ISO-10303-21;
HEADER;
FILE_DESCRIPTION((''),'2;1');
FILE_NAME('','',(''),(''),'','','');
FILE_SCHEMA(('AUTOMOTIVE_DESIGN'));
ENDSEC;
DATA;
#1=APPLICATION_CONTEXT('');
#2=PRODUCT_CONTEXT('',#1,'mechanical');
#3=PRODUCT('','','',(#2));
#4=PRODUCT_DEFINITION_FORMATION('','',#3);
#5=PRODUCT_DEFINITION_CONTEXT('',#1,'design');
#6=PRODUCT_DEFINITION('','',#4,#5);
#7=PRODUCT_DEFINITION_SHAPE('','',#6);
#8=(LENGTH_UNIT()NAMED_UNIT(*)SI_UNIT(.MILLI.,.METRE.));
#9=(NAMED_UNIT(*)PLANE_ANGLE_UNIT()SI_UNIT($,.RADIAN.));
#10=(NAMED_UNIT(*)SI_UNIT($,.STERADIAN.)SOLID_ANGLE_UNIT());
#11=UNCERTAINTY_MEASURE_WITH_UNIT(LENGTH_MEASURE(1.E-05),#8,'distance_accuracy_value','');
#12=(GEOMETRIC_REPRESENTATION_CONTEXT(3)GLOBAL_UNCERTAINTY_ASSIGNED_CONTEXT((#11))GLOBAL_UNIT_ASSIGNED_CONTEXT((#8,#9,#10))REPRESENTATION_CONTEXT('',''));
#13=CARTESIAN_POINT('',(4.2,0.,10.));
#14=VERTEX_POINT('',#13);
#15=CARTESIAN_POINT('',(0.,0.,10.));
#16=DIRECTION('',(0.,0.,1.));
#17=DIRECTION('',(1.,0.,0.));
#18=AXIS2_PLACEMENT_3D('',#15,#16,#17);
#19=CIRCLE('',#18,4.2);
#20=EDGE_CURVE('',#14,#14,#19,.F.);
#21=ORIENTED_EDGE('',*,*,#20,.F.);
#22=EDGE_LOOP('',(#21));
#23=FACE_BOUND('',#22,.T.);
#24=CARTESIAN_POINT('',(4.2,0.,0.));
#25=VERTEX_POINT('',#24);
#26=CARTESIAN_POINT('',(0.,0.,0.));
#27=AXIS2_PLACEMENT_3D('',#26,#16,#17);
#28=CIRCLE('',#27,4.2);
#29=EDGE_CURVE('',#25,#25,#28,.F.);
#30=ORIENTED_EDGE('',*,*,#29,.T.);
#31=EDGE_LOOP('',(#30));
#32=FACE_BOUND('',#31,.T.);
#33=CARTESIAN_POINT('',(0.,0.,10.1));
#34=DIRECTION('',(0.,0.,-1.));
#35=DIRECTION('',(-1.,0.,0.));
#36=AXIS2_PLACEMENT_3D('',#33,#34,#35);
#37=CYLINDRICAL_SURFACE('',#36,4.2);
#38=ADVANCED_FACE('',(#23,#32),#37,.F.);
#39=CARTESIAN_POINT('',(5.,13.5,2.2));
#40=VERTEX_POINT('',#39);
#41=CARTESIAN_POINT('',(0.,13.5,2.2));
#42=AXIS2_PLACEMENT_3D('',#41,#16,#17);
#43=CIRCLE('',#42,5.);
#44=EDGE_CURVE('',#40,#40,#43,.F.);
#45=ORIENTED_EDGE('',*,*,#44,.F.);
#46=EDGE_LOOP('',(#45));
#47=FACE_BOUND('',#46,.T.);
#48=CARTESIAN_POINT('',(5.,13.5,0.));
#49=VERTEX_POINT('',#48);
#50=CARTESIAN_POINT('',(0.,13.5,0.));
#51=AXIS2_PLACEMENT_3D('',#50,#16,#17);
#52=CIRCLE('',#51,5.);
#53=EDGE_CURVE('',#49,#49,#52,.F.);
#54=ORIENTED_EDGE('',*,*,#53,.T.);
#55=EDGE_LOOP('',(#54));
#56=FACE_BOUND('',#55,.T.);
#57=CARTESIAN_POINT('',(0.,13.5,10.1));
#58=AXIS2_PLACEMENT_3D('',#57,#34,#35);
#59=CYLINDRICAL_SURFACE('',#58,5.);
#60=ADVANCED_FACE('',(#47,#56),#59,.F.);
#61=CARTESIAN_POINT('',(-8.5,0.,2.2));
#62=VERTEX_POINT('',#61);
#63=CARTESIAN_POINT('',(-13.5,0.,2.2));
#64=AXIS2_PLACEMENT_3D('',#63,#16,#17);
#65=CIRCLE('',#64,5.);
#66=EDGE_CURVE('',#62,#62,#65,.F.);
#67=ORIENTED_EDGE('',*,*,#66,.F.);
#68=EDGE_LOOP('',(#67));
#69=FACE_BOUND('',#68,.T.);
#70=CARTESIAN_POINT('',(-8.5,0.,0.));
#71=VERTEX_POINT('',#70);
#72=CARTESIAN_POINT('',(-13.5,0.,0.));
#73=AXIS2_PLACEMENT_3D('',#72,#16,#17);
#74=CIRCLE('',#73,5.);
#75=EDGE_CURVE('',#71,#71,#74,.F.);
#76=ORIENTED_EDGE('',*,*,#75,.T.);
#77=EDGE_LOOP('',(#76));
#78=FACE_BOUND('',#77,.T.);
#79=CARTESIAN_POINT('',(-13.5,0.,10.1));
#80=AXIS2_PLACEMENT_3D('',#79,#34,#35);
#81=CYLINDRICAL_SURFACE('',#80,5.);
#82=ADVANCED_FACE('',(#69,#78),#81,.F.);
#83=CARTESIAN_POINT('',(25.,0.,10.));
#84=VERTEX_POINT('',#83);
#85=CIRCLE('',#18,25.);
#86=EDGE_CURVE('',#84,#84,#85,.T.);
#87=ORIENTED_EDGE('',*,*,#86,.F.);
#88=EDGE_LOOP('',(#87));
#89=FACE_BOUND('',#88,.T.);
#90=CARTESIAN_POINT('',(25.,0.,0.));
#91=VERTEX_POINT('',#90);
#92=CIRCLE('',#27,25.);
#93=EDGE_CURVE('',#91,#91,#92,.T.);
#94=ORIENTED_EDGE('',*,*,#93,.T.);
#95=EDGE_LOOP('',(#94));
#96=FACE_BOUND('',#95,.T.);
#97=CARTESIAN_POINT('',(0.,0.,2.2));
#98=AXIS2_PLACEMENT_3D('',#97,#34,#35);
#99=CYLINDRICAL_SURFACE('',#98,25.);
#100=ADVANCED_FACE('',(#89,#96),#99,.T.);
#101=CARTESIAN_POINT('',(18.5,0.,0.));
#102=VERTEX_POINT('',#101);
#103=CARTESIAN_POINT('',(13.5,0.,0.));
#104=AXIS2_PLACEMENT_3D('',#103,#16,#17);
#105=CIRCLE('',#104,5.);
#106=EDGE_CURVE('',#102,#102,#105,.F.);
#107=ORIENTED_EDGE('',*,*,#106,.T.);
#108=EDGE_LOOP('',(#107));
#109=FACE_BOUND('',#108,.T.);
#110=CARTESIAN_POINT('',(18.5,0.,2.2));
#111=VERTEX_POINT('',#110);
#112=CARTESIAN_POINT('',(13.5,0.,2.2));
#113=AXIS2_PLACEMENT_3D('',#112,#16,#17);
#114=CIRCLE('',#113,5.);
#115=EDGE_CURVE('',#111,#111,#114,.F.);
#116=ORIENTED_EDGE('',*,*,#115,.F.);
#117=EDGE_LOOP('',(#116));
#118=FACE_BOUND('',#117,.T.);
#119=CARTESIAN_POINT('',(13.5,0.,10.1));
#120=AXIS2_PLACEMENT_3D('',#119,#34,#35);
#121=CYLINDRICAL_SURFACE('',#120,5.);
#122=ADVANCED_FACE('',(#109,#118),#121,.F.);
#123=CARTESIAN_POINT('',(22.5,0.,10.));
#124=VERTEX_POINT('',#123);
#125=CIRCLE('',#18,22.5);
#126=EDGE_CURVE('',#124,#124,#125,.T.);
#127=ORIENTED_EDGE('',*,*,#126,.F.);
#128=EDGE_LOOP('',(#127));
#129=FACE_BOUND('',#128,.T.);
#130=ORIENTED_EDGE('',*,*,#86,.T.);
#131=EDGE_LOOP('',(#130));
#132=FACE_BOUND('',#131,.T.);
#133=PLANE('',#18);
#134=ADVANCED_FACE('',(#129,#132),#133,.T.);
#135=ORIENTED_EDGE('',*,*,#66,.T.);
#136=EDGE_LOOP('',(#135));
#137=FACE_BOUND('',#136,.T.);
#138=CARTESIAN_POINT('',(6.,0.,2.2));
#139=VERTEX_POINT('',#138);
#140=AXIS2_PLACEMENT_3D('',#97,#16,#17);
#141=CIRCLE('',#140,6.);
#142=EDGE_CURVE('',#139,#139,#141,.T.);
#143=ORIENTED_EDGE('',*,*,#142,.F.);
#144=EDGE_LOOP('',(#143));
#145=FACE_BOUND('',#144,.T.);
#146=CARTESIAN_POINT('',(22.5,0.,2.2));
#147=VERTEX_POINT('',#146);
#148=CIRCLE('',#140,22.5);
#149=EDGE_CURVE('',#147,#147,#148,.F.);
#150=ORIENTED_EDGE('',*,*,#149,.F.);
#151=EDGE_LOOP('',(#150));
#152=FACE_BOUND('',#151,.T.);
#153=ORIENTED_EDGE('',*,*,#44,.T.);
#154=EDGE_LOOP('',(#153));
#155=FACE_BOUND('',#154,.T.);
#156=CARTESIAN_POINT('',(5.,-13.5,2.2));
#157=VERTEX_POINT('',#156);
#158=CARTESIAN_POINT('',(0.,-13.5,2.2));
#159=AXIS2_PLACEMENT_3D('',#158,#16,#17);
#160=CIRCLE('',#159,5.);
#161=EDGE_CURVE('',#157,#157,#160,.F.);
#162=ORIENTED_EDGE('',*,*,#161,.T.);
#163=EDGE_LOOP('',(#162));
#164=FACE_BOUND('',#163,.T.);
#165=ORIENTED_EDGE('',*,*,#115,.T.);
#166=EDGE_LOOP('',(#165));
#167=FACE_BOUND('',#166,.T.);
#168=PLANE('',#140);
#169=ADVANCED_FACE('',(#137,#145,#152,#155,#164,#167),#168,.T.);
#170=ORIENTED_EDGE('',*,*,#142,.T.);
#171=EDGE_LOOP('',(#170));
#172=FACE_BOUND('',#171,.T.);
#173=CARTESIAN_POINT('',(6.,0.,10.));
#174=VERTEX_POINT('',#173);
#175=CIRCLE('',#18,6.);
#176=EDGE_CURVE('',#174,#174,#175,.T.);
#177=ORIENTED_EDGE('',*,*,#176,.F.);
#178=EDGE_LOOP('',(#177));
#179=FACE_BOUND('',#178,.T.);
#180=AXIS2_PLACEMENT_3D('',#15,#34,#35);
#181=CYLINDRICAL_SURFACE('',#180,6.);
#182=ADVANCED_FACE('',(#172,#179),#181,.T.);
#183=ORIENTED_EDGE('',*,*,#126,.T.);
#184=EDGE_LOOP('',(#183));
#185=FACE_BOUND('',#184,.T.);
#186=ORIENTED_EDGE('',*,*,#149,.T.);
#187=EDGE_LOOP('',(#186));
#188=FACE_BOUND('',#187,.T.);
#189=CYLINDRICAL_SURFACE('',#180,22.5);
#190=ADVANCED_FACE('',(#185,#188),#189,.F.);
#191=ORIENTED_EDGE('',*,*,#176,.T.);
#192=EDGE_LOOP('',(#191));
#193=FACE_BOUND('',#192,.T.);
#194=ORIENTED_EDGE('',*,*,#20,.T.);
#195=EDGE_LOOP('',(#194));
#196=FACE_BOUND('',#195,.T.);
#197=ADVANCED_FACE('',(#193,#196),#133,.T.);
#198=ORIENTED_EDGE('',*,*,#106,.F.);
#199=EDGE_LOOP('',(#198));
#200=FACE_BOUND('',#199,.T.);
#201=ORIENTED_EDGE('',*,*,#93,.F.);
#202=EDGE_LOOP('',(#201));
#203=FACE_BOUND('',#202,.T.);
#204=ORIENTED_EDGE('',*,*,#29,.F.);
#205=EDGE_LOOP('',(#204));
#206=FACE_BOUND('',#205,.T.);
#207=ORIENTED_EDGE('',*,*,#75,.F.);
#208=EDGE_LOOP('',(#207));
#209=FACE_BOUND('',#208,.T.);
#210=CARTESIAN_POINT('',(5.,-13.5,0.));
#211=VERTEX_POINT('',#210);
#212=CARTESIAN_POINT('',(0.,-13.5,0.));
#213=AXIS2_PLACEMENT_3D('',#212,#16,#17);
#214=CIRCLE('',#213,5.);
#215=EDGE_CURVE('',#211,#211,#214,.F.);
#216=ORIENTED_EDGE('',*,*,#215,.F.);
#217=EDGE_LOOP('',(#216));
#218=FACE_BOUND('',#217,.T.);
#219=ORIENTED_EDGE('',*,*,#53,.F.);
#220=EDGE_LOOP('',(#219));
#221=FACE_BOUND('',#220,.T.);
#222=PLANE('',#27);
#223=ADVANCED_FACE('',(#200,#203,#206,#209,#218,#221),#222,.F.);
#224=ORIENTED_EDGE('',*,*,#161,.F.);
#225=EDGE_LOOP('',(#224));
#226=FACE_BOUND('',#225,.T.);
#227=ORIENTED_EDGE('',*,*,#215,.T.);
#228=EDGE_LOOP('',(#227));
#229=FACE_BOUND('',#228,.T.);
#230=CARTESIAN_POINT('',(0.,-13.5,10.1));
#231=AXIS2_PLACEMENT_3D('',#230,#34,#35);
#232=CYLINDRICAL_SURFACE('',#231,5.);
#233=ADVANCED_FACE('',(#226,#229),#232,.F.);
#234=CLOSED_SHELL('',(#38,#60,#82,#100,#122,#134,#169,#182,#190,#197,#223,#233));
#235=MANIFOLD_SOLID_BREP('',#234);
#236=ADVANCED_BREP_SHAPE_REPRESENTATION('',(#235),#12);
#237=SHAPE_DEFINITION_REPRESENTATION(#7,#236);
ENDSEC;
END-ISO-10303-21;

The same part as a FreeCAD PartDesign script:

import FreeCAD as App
import Part
import Sketcher

V = App.Vector
Q = App.Units.Quantity

doc = App.newDocument("Part")
body = doc.addObject("PartDesign::Body", "Body")

# Sketch on XY plane
sketch1 = body.newObject("Sketcher::SketchObject", "Sketch")
sketch1.AttachmentSupport = (doc.getObject("XY_Plane"), [""])
sketch1.MapMode = "FlatFace"
sketch1.addGeometry(Part.Circle(V(0, 0, 0), V(0, 0, 1), 25), False)
sketch1.addConstraint([
    Sketcher.Constraint("Coincident", 0, 3, -1, 1),
    Sketcher.Constraint("Diameter", 0, Q("50 mm")),
])
pad1 = body.newObject("PartDesign::Pad", "Pad")
pad1.Profile = sketch1
pad1.Length = 2.2

# Sketch on XY plane
sketch2 = body.newObject("Sketcher::SketchObject", "Sketch001")
sketch2.AttachmentSupport = (doc.getObject("XY_Plane"), [""])
sketch2.MapMode = "FlatFace"
sketch2.AttachmentOffset = App.Placement(V(0, 0, 2.2), App.Rotation())
sketch2.addGeometry([
    Part.Circle(V(0, 0, 0), V(0, 0, 1), 25),
    Part.Circle(V(0, 0, 0), V(0, 0, 1), 22.5),
], False)
sketch2.addConstraint([
    Sketcher.Constraint("Coincident", 0, 3, -1, 1),
    Sketcher.Constraint("Coincident", 1, 3, -1, 1),
    Sketcher.Constraint("Diameter", 0, Q("50 mm")),
    Sketcher.Constraint("Diameter", 1, Q("45 mm")),
])
pad2 = body.newObject("PartDesign::Pad", "Pad001")
pad2.Profile = sketch2
pad2.Length = 7.8

# Sketch on XY plane
sketch3 = body.newObject("Sketcher::SketchObject", "Sketch002")
sketch3.AttachmentSupport = (doc.getObject("XY_Plane"), [""])
sketch3.MapMode = "FlatFace"
sketch3.AttachmentOffset = App.Placement(V(0, 0, 2.2), App.Rotation())
sketch3.addGeometry(Part.Circle(V(0, 0, 0), V(0, 0, 1), 6), False)
sketch3.addConstraint([
    Sketcher.Constraint("Coincident", 0, 3, -1, 1),
    Sketcher.Constraint("Diameter", 0, Q("12 mm")),
])
pad3 = body.newObject("PartDesign::Pad", "Pad002")
pad3.Profile = sketch3
pad3.Length = 7.8

# Sketch on XY plane
sketch4 = body.newObject("Sketcher::SketchObject", "Sketch003")
sketch4.AttachmentSupport = (doc.getObject("XY_Plane"), [""])
sketch4.MapMode = "FlatFace"
sketch4.AttachmentOffset = App.Placement(V(0, 0, -0.1), App.Rotation())
sketch4.addGeometry(Part.Circle(V(0, 0, 0), V(0, 0, 1), 4.2), False)
sketch4.addConstraint([
    Sketcher.Constraint("Coincident", 0, 3, -1, 1),
    Sketcher.Constraint("Diameter", 0, Q("8.4 mm")),
])
pocket1 = body.newObject("PartDesign::Pocket", "Pocket")
pocket1.Profile = sketch4
pocket1.Length = 10.2
pocket1.Reversed = True

# Sketch on XY plane
sketch5 = body.newObject("Sketcher::SketchObject", "Sketch004")
sketch5.AttachmentSupport = (doc.getObject("XY_Plane"), [""])
sketch5.MapMode = "FlatFace"
sketch5.AttachmentOffset = App.Placement(V(0, 0, -0.1), App.Rotation())
sketch5.addGeometry(Part.Circle(V(-13.5, 0, 0), V(0, 0, 1), 5), False)
sketch5.addConstraint([
    Sketcher.Constraint("PointOnObject", 0, 3, -1),
    Sketcher.Constraint("Diameter", 0, Q("10 mm")),
    Sketcher.Constraint("DistanceX", 0, 3, -1, 1, Q("13.5 mm")),
])
pocket2 = body.newObject("PartDesign::Pocket", "Pocket001")
pocket2.Profile = sketch5
pocket2.Length = 10.2
pocket2.Reversed = True

# Sketch on XY plane
sketch6 = body.newObject("Sketcher::SketchObject", "Sketch005")
sketch6.AttachmentSupport = (doc.getObject("XY_Plane"), [""])
sketch6.MapMode = "FlatFace"
sketch6.AttachmentOffset = App.Placement(V(0, 0, -0.1), App.Rotation())
sketch6.addGeometry(Part.Circle(V(13.5, 0, 0), V(0, 0, 1), 5), False)
sketch6.addConstraint([
    Sketcher.Constraint("PointOnObject", 0, 3, -1),
    Sketcher.Constraint("Diameter", 0, Q("10 mm")),
    Sketcher.Constraint("DistanceX", -1, 1, 0, 3, Q("13.5 mm")),
])
pocket3 = body.newObject("PartDesign::Pocket", "Pocket002")
pocket3.Profile = sketch6
pocket3.Length = 10.2
pocket3.Reversed = True

# Sketch on XY plane
sketch7 = body.newObject("Sketcher::SketchObject", "Sketch006")
sketch7.AttachmentSupport = (doc.getObject("XY_Plane"), [""])
sketch7.MapMode = "FlatFace"
sketch7.AttachmentOffset = App.Placement(V(0, 0, -0.1), App.Rotation())
sketch7.addGeometry(Part.Circle(V(0, -13.5, 0), V(0, 0, 1), 5), False)
sketch7.addConstraint([
    Sketcher.Constraint("PointOnObject", 0, 3, -2),
    Sketcher.Constraint("Diameter", 0, Q("10 mm")),
    Sketcher.Constraint("DistanceY", 0, 3, -1, 1, Q("13.5 mm")),
])
pocket4 = body.newObject("PartDesign::Pocket", "Pocket003")
pocket4.Profile = sketch7
pocket4.Length = 10.2
pocket4.Reversed = True

# Sketch on XY plane
sketch8 = body.newObject("Sketcher::SketchObject", "Sketch007")
sketch8.AttachmentSupport = (doc.getObject("XY_Plane"), [""])
sketch8.MapMode = "FlatFace"
sketch8.AttachmentOffset = App.Placement(V(0, 0, -0.1), App.Rotation())
sketch8.addGeometry(Part.Circle(V(0, 13.5, 0), V(0, 0, 1), 5), False)
sketch8.addConstraint([
    Sketcher.Constraint("PointOnObject", 0, 3, -2),
    Sketcher.Constraint("Diameter", 0, Q("10 mm")),
    Sketcher.Constraint("DistanceY", -1, 1, 0, 3, Q("13.5 mm")),
])
pocket5 = body.newObject("PartDesign::Pocket", "Pocket004")
pocket5.Profile = sketch8
pocket5.Length = 10.2
pocket5.Reversed = True

doc.recompute()
